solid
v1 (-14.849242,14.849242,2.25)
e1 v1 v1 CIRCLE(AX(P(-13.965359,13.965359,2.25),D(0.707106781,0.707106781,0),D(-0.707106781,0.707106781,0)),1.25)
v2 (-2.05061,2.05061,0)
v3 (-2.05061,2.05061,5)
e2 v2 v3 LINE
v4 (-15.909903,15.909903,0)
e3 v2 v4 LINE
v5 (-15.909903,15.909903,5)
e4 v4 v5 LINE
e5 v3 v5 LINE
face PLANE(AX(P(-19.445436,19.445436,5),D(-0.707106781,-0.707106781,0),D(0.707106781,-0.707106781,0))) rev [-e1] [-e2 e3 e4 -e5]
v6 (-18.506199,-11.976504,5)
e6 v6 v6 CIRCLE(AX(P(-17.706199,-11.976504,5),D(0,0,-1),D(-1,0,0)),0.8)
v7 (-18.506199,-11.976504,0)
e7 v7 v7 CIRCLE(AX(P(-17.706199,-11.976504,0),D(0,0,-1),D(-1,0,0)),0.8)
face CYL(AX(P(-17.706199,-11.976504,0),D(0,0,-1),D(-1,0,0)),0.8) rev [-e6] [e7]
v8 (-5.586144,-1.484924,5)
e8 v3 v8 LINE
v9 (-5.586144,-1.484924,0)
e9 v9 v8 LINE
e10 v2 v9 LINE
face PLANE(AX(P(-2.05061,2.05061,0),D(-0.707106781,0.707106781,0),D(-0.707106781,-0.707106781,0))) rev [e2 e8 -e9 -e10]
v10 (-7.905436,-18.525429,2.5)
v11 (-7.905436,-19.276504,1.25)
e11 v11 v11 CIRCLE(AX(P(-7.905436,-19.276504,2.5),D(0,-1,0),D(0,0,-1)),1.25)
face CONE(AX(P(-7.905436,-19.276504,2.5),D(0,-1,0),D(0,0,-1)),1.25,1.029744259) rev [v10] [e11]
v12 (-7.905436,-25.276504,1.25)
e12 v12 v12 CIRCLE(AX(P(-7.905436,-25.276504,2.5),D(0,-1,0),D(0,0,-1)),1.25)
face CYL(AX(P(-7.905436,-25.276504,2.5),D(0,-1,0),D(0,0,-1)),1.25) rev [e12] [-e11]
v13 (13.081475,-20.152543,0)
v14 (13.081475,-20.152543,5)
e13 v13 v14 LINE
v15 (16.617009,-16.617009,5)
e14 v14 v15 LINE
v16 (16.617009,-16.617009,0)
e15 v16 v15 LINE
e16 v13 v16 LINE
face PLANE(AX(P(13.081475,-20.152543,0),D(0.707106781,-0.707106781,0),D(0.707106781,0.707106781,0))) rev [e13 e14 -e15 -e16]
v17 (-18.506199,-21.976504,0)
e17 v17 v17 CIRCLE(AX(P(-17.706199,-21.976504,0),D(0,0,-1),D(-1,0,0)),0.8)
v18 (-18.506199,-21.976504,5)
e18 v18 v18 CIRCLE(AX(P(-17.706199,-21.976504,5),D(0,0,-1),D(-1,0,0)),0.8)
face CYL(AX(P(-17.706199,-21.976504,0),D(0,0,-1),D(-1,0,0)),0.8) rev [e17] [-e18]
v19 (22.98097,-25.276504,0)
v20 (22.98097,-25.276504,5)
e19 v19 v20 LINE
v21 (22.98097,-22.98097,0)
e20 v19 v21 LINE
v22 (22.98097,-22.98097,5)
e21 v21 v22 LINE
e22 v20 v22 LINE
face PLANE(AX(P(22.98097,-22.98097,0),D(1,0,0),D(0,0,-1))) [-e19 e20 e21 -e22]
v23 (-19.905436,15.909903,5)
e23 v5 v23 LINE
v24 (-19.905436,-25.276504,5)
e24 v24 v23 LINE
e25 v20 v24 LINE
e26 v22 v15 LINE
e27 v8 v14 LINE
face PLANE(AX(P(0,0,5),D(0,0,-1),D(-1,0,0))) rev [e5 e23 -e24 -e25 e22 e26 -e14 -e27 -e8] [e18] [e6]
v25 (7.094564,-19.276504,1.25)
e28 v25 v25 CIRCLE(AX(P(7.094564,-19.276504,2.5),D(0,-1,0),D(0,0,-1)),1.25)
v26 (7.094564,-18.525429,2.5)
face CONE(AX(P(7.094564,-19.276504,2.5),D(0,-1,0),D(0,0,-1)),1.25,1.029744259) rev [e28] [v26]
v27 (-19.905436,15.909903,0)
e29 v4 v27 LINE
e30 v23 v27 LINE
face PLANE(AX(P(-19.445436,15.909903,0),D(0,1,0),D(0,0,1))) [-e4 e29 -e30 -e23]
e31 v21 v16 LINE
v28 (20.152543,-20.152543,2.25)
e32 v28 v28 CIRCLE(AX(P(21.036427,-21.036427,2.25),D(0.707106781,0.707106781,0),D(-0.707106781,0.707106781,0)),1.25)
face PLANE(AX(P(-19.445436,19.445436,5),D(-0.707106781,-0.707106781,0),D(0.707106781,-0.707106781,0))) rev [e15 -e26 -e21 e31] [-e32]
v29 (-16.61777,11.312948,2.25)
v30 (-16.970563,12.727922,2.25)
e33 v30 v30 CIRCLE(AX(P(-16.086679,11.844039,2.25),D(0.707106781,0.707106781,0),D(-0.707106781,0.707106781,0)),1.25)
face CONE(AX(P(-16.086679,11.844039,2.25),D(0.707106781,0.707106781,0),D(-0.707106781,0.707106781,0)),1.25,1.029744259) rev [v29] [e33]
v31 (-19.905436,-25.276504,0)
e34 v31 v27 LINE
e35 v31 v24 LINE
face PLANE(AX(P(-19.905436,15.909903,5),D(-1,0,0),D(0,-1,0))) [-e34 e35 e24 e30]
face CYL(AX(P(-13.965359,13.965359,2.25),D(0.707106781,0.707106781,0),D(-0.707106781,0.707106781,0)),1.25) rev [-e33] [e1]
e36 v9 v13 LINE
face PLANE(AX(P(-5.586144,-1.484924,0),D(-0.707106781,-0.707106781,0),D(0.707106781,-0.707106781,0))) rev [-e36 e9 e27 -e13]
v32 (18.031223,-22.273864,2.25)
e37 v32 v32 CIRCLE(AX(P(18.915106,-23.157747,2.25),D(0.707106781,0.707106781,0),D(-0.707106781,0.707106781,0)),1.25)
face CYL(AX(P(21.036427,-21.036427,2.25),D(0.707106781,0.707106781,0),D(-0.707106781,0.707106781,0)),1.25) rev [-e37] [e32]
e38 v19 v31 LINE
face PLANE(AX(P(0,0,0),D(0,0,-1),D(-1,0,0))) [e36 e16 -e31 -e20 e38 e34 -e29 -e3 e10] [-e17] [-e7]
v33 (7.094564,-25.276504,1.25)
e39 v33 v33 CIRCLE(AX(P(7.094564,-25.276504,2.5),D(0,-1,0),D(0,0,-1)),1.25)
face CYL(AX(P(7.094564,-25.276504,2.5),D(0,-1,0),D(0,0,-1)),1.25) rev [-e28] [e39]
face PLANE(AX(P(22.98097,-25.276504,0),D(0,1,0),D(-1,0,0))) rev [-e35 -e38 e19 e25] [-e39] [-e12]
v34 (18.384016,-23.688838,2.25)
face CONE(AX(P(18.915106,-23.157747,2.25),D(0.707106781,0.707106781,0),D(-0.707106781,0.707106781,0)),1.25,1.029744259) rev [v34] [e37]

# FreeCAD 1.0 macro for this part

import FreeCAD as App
import Part
import Sketcher
Q = App.Units.Quantity

doc = App.newDocument("Part")
body = doc.addObject("PartDesign::Body", "Body")

# Sketch on XY plane
sketch1 = body.newObject("Sketcher::SketchObject", "Sketch")
sketch1.AttachmentSupport = (doc.getObject("XY_Plane"), [""])
sketch1.MapMode = "FlatFace"
sketch1.addGeometry([
    Part.LineSegment(App.Vector(27, -27, 0), App.Vector(-19, 19, 0)),
    Part.LineSegment(App.Vector(-19, 19, 0), App.Vector(-19, -27, 0)),
    Part.LineSegment(App.Vector(-19, -27, 0), App.Vector(27, -27, 0)),
], False)
sketch1.addConstraint([
    Sketcher.Constraint("Coincident", 0, 2, 1, 1),
    Sketcher.Constraint("Coincident", 1, 2, 2, 1),
    Sketcher.Constraint("Coincident", 2, 2, 0, 1),
    Sketcher.Constraint("Vertical", 1),
    Sketcher.Constraint("Horizontal", 2),
    Sketcher.Constraint("Equal", 2, 1),
    Sketcher.Constraint("Distance", 0, Q("65 mm")),
    Sketcher.Constraint("DistanceX", 0, 2, -1, 1, Q("19.445436 mm")),
    Sketcher.Constraint("DistanceY", -1, 1, 0, 2, Q("19.445436 mm")),
])
pad1 = body.newObject("PartDesign::Pad", "Pad")
pad1.Profile = sketch1
pad1.Length = 5

# Sketch on an angled plane
sketch2 = body.newObject("Sketcher::SketchObject", "Sketch001")
sketch2.Placement = App.Placement(App.Vector(0, 0, 0), App.Rotation(App.Vector(0, 0, -1), App.Vector(-0.707106781, 0.707106781, 0), App.Vector(0.707106781, 0.707106781, 0), "ZXY"))
sketch2.addGeometry([
    Part.Circle(App.Vector(-2.2, 19.7, 0), App.Vector(0, 0, 1), 1.2),
    Part.Circle(App.Vector(-2.2, -29.7, 0), App.Vector(0, 0, 1), 1.2),
], False)
sketch2.addConstraint([
    Sketcher.Constraint("Equal", 0, 1),
    Sketcher.Constraint("Vertical", 0, 3, 1, 3),
    Sketcher.Constraint("Diameter", 0, Q("2.5 mm")),
    Sketcher.Constraint("DistanceY", 1, 3, 0, 3, Q("49.5 mm")),
    Sketcher.Constraint("DistanceX", 0, 3, -1, 1, Q("2.25 mm")),
    Sketcher.Constraint("DistanceY", -1, 1, 0, 3, Q("19.75 mm")),
])
doc.recompute()
hole = body.newObject("PartDesign::Hole", "Hole")
hole.Profile = sketch2
hole.ThreadType = "None"
hole.Diameter = 2.5
hole.DepthType = "Dimension"
hole.Depth = 3
hole.DrillPoint = "Angled"
hole.DrillPointAngle = 118

# Sketch on XY plane
sketch3 = body.newObject("Sketcher::SketchObject", "Sketch002")
sketch3.AttachmentSupport = (doc.getObject("XY_Plane"), [""])
sketch3.MapMode = "FlatFace"
sketch3.AttachmentOffset = App.Placement(App.Vector(0, 0, 5), App.Rotation())
sketch3.addGeometry([
    Part.LineSegment(App.Vector(-19.4, 19.4, 0), App.Vector(-15.9, 15.9, 0)),  # 0
    Part.LineSegment(App.Vector(-15.9, 15.9, 0), App.Vector(-14.5, 17.3, 0)),  # 1
    Part.LineSegment(App.Vector(-14.5, 17.3, 0), App.Vector(-18, 20.9, 0)),  # 2
    Part.LineSegment(App.Vector(-18, 20.9, 0), App.Vector(-19.4, 19.4, 0)),  # 3
    Part.LineSegment(App.Vector(23, -23, 0), App.Vector(26.5, -26.5, 0)),  # 4
    Part.LineSegment(App.Vector(26.5, -26.5, 0), App.Vector(27.9, -25.1, 0)),  # 5
    Part.LineSegment(App.Vector(27.9, -25.1, 0), App.Vector(24.4, -21.6, 0)),  # 6
    Part.LineSegment(App.Vector(24.4, -21.6, 0), App.Vector(23, -23, 0)),  # 7
], False)
sketch3.addConstraint([
    Sketcher.Constraint("Coincident", 0, 2, 1, 1),
    Sketcher.Constraint("Coincident", 1, 2, 2, 1),
    Sketcher.Constraint("Coincident", 2, 2, 3, 1),
    Sketcher.Constraint("Coincident", 3, 2, 0, 1),
    Sketcher.Constraint("Coincident", 4, 2, 5, 1),
    Sketcher.Constraint("Coincident", 5, 2, 6, 1),
    Sketcher.Constraint("Coincident", 6, 2, 7, 1),
    Sketcher.Constraint("Coincident", 7, 2, 4, 1),
    Sketcher.Constraint("Perpendicular", 0, 1),
    Sketcher.Constraint("Perpendicular", 1, 2),
    Sketcher.Constraint("Perpendicular", 2, 3),
    Sketcher.Constraint("Perpendicular", 3, 4),
    Sketcher.Constraint("Perpendicular", 4, 5),
    Sketcher.Constraint("Perpendicular", 5, 6),
    Sketcher.Constraint("Perpendicular", 6, 7),
    Sketcher.Constraint("Equal", 2, 4),
    Sketcher.Constraint("Equal", 3, 5),
    Sketcher.Constraint("Angle", 0, Q("-45 deg")),
    Sketcher.Constraint("Distance", 0, Q("5 mm")),
    Sketcher.Constraint("Distance", 1, Q("2 mm")),
    Sketcher.Constraint("DistanceX", 1, 2, -1, 1, Q("14.495689 mm")),
    Sketcher.Constraint("DistanceY", -1, 1, 2, 2, Q("20.85965 mm")),
    Sketcher.Constraint("DistanceY", 5, 2, -1, 1, Q("25.102291 mm")),
    Sketcher.Constraint("DistanceX", -1, 1, 7, 2, Q("22.98097 mm")),
])
pad2 = body.newObject("PartDesign::Pad", "Pad001")
pad2.Profile = sketch3
pad2.Length = 5
pad2.Reversed = True

# Sketch on XY plane
sketch4 = body.newObject("Sketcher::SketchObject", "Sketch003")
sketch4.AttachmentSupport = (doc.getObject("XY_Plane"), [""])
sketch4.MapMode = "FlatFace"
sketch4.AttachmentOffset = App.Placement(App.Vector(0, 0, 5), App.Rotation())
sketch4.addGeometry([
    Part.LineSegment(App.Vector(-2.1, 2.1, 0), App.Vector(-5.6, -1.5, 0)),
    Part.LineSegment(App.Vector(-5.6, -1.5, 0), App.Vector(13.1, -20.2, 0)),
    Part.LineSegment(App.Vector(13.1, -20.2, 0), App.Vector(16.6, -16.6, 0)),
    Part.LineSegment(App.Vector(16.6, -16.6, 0), App.Vector(-2.1, 2.1, 0)),
], False)
sketch4.addConstraint([
    Sketcher.Constraint("Coincident", 0, 2, 1, 1),
    Sketcher.Constraint("Coincident", 1, 2, 2, 1),
    Sketcher.Constraint("Coincident", 2, 2, 3, 1),
    Sketcher.Constraint("Coincident", 3, 2, 0, 1),
    Sketcher.Constraint("Perpendicular", 0, 1),
    Sketcher.Constraint("Perpendicular", 1, 2),
    Sketcher.Constraint("Perpendicular", 2, 3),
    Sketcher.Constraint("Angle", 0, Q("-135 deg")),
    Sketcher.Constraint("Distance", 0, Q("5 mm")),
    Sketcher.Constraint("Distance", 1, Q("26.4 mm")),
    Sketcher.Constraint("DistanceX", -1, 1, 2, 2, Q("16.617009 mm")),
    Sketcher.Constraint("DistanceY", 2, 2, -1, 1, Q("16.617009 mm")),
])
pocket1 = body.newObject("PartDesign::Pocket", "Pocket")
pocket1.Profile = sketch4
pocket1.Type = "ThroughAll"

# Sketch on XY plane
sketch5 = body.newObject("Sketcher::SketchObject", "Sketch004")
sketch5.AttachmentSupport = (doc.getObject("XY_Plane"), [""])
sketch5.MapMode = "FlatFace"
sketch5.AttachmentOffset = App.Placement(App.Vector(0, 0, 5), App.Rotation())
sketch5.addGeometry([
    Part.LineSegment(App.Vector(-19.4, 12.4, 0), App.Vector(-15.9, 15.9, 0)),  # 0
    Part.LineSegment(App.Vector(-15.9, 15.9, 0), App.Vector(-14.5, 17.3, 0)),  # 1
    Part.LineSegment(App.Vector(-14.5, 17.3, 0), App.Vector(-18, 20.9, 0)),  # 2
    Part.LineSegment(App.Vector(-18, 20.9, 0), App.Vector(-19.4, 19.4, 0)),  # 3
    Part.LineSegment(App.Vector(-19.4, 19.4, 0), App.Vector(-19.4, 12.4, 0)),  # 4
    Part.LineSegment(App.Vector(27.9, -25.1, 0), App.Vector(24.4, -21.6, 0)),  # 5
    Part.LineSegment(App.Vector(24.4, -21.6, 0), App.Vector(19.4, -26.5, 0)),  # 6
    Part.LineSegment(App.Vector(19.4, -26.5, 0), App.Vector(26.5, -26.5, 0)),  # 7
    Part.LineSegment(App.Vector(26.5, -26.5, 0), App.Vector(27.9, -25.1, 0)),  # 8
], False)
sketch5.addConstraint([
    Sketcher.Constraint("Coincident", 0, 2, 1, 1),
    Sketcher.Constraint("Coincident", 1, 2, 2, 1),
    Sketcher.Constraint("Coincident", 2, 2, 3, 1),
    Sketcher.Constraint("Coincident", 3, 2, 4, 1),
    Sketcher.Constraint("Coincident", 4, 2, 0, 1),
    Sketcher.Constraint("Coincident", 5, 2, 6, 1),
    Sketcher.Constraint("Coincident", 6, 2, 7, 1),
    Sketcher.Constraint("Coincident", 7, 2, 8, 1),
    Sketcher.Constraint("Coincident", 8, 2, 5, 1),
    Sketcher.Constraint("Vertical", 4),
    Sketcher.Constraint("Horizontal", 7),
    Sketcher.Constraint("Parallel", 0, 1),
    Sketcher.Constraint("Perpendicular", 1, 2),
    Sketcher.Constraint("Perpendicular", 2, 3),
    Sketcher.Constraint("Perpendicular", 3, 5),
    Sketcher.Constraint("Perpendicular", 5, 6),
    Sketcher.Constraint("Parallel", 6, 8),
    Sketcher.Constraint("Equal", 7, 4),
    Sketcher.Constraint("Equal", 0, 2),
    Sketcher.Constraint("Equal", 1, 3),
    Sketcher.Constraint("Equal", 3, 8),
    Sketcher.Constraint("Distance", 0, Q("5 mm")),
    Sketcher.Constraint("Distance", 1, Q("2 mm")),
    Sketcher.Constraint("DistanceX", 1, 2, -1, 1, Q("14.495689 mm")),
    Sketcher.Constraint("DistanceY", -1, 1, 2, 2, Q("20.85965 mm")),
    Sketcher.Constraint("DistanceY", 8, 2, -1, 1, Q("25.102291 mm")),
    Sketcher.Constraint("DistanceX", 4, 2, 5, 2, Q("43.84062 mm")),
])
pocket2 = body.newObject("PartDesign::Pocket", "Pocket001")
pocket2.Profile = sketch5
pocket2.Type = "ThroughAll"

# Sketch on XY plane
sketch6 = body.newObject("Sketcher::SketchObject", "Sketch005")
sketch6.AttachmentSupport = (doc.getObject("XY_Plane"), [""])
sketch6.MapMode = "FlatFace"
sketch6.AttachmentOffset = App.Placement(App.Vector(0, 0, 5), App.Rotation())
sketch6.addGeometry([
    Part.LineSegment(App.Vector(23, -23, 0), App.Vector(19.4, -26.5, 0)),
    Part.LineSegment(App.Vector(19.4, -26.5, 0), App.Vector(23, -26.5, 0)),
    Part.LineSegment(App.Vector(23, -26.5, 0), App.Vector(23, -23, 0)),
], False)
sketch6.addConstraint([
    Sketcher.Constraint("Coincident", 0, 2, 1, 1),
    Sketcher.Constraint("Coincident", 1, 2, 2, 1),
    Sketcher.Constraint("Coincident", 2, 2, 0, 1),
    Sketcher.Constraint("Horizontal", 1),
    Sketcher.Constraint("Vertical", 2),
    Sketcher.Constraint("Equal", 1, 2),
    Sketcher.Constraint("Distance", 0, Q("5 mm")),
    Sketcher.Constraint("DistanceX", -1, 1, 1, 2, Q("22.98097 mm")),
    Sketcher.Constraint("DistanceY", 2, 2, -1, 1, Q("22.98097 mm")),
])
pad3 = body.newObject("PartDesign::Pad", "Pad002")
pad3.Profile = sketch6
pad3.Length = 5
pad3.Reversed = True

# Sketch on XY plane
sketch7 = body.newObject("Sketcher::SketchObject", "Sketch006")
sketch7.AttachmentSupport = (doc.getObject("XY_Plane"), [""])
sketch7.MapMode = "FlatFace"
sketch7.AttachmentOffset = App.Placement(App.Vector(0, 0, 5), App.Rotation())
sketch7.addGeometry([
    Part.LineSegment(App.Vector(-19.4, 15.9, 0), App.Vector(-19.4, 12.4, 0)),
    Part.LineSegment(App.Vector(-19.4, 12.4, 0), App.Vector(-15.9, 15.9, 0)),
    Part.LineSegment(App.Vector(-15.9, 15.9, 0), App.Vector(-19.4, 15.9, 0)),
], False)
sketch7.addConstraint([
    Sketcher.Constraint("Coincident", 0, 2, 1, 1),
    Sketcher.Constraint("Coincident", 1, 2, 2, 1),
    Sketcher.Constraint("Coincident", 2, 2, 0, 1),
    Sketcher.Constraint("Vertical", 0),
    Sketcher.Constraint("Horizontal", 2),
    Sketcher.Constraint("Equal", 2, 0),
    Sketcher.Constraint("Distance", 1, Q("5 mm")),
    Sketcher.Constraint("DistanceY", -1, 1, 0, 2, Q("12.374369 mm")),
    Sketcher.Constraint("DistanceX", 0, 2, -1, 1, Q("19.445436 mm")),
])
pad4 = body.newObject("PartDesign::Pad", "Pad003")
pad4.Profile = sketch7
pad4.Length = 5
pad4.Reversed = True

# Sketch on XY plane
sketch8 = body.newObject("Sketcher::SketchObject", "Sketch007")
sketch8.AttachmentSupport = (doc.getObject("XY_Plane"), [""])
sketch8.MapMode = "FlatFace"
sketch8.addGeometry([
    Part.LineSegment(App.Vector(22.98, -26.52, 0), App.Vector(22.98, -26.98, 0)),
    Part.LineSegment(App.Vector(22.98, -26.98, 0), App.Vector(-19.45, -26.98, 0)),
    Part.LineSegment(App.Vector(-19.45, -26.98, 0), App.Vector(-19.45, -26.52, 0)),
    Part.LineSegment(App.Vector(-19.45, -26.52, 0), App.Vector(22.98, -26.52, 0)),
], False)
sketch8.addConstraint([
    Sketcher.Constraint("Coincident", 0, 2, 1, 1),
    Sketcher.Constraint("Coincident", 1, 2, 2, 1),
    Sketcher.Constraint("Coincident", 2, 2, 3, 1),
    Sketcher.Constraint("Coincident", 3, 2, 0, 1),
    Sketcher.Constraint("Vertical", 0),
    Sketcher.Constraint("Horizontal", 1),
    Sketcher.Constraint("Vertical", 2),
    Sketcher.Constraint("Horizontal", 3),
    Sketcher.Constraint("DistanceY", 0, 2, 0, 1, Q("0.46 mm")),
    Sketcher.Constraint("DistanceX", 1, 2, 1, 1, Q("42.426407 mm")),
    Sketcher.Constraint("DistanceX", -1, 1, 0, 2, Q("22.98097 mm")),
    Sketcher.Constraint("DistanceY", 0, 2, -1, 1, Q("26.976504 mm")),
])
pad5 = body.newObject("PartDesign::Pad", "Pad004")
pad5.Profile = sketch8
pad5.Length = 5

# Sketch on XY plane
sketch9 = body.newObject("Sketcher::SketchObject", "Sketch008")
sketch9.AttachmentSupport = (doc.getObject("XY_Plane"), [""])
sketch9.MapMode = "FlatFace"
sketch9.addGeometry([
    Part.LineSegment(App.Vector(-19.45, 15.91, 0), App.Vector(-19.45, -26.98, 0)),
    Part.LineSegment(App.Vector(-19.45, -26.98, 0), App.Vector(-19.91, -26.98, 0)),
    Part.LineSegment(App.Vector(-19.91, -26.98, 0), App.Vector(-19.91, 15.91, 0)),
    Part.LineSegment(App.Vector(-19.91, 15.91, 0), App.Vector(-19.45, 15.91, 0)),
], False)
sketch9.addConstraint([
    Sketcher.Constraint("Coincident", 0, 2, 1, 1),
    Sketcher.Constraint("Coincident", 1, 2, 2, 1),
    Sketcher.Constraint("Coincident", 2, 2, 3, 1),
    Sketcher.Constraint("Coincident", 3, 2, 0, 1),
    Sketcher.Constraint("Vertical", 0),
    Sketcher.Constraint("Horizontal", 1),
    Sketcher.Constraint("Vertical", 2),
    Sketcher.Constraint("Horizontal", 3),
    Sketcher.Constraint("DistanceX", 1, 2, 1, 1, Q("0.46 mm")),
    Sketcher.Constraint("DistanceY", 0, 2, 0, 1, Q("42.886407 mm")),
    Sketcher.Constraint("DistanceX", 0, 2, -1, 1, Q("19.445436 mm")),
    Sketcher.Constraint("DistanceY", 0, 2, -1, 1, Q("26.976504 mm")),
])
pad6 = body.newObject("PartDesign::Pad", "Pad005")
pad6.Profile = sketch9
pad6.Length = 5

# Sketch on XY plane
sketch10 = body.newObject("Sketcher::SketchObject", "Sketch009")
sketch10.AttachmentSupport = (doc.getObject("XY_Plane"), [""])
sketch10.MapMode = "FlatFace"
sketch10.addGeometry([
    Part.Circle(App.Vector(-17.7, -12, 0), App.Vector(0, 0, 1), 0.8),
    Part.Circle(App.Vector(-17.7, -22, 0), App.Vector(0, 0, 1), 0.8),
], False)
sketch10.addConstraint([
    Sketcher.Constraint("Equal", 0, 1),
    Sketcher.Constraint("Vertical", 0, 3, 1, 3),
    Sketcher.Constraint("Diameter", 0, Q("1.6 mm")),
    Sketcher.Constraint("DistanceY", 1, 3, 0, 3, Q("10 mm")),
    Sketcher.Constraint("DistanceX", 0, 3, -1, 1, Q("17.706199 mm")),
    Sketcher.Constraint("DistanceY", 0, 3, -1, 1, Q("11.976504 mm")),
])
doc.recompute()
hole2 = body.newObject("PartDesign::Hole", "Hole001")
hole2.Profile = sketch10
hole2.ThreadType = "None"
hole2.Diameter = 1.6
hole2.DepthType = "Dimension"
hole2.Depth = 6
hole2.DrillPoint = "Angled"
hole2.DrillPointAngle = 118
hole2.Reversed = True

# Sketch on XY plane
sketch11 = body.newObject("Sketcher::SketchObject", "Sketch010")
sketch11.AttachmentSupport = (doc.getObject("XY_Plane"), [""])
sketch11.MapMode = "FlatFace"
sketch11.AttachmentOffset = App.Placement(App.Vector(0, 0, 5), App.Rotation())
sketch11.addGeometry([
    Part.LineSegment(App.Vector(-19.9, -25.3, 0), App.Vector(-19.9, -27, 0)),
    Part.LineSegment(App.Vector(-19.9, -27, 0), App.Vector(23, -27, 0)),
    Part.LineSegment(App.Vector(23, -27, 0), App.Vector(23, -25.3, 0)),
    Part.LineSegment(App.Vector(23, -25.3, 0), App.Vector(-19.9, -25.3, 0)),
], False)
sketch11.addConstraint([
    Sketcher.Constraint("Coincident", 0, 2, 1, 1),
    Sketcher.Constraint("Coincident", 1, 2, 2, 1),
    Sketcher.Constraint("Coincident", 2, 2, 3, 1),
    Sketcher.Constraint("Coincident", 3, 2, 0, 1),
    Sketcher.Constraint("Vertical", 0),
    Sketcher.Constraint("Horizontal", 1),
    Sketcher.Constraint("Vertical", 2),
    Sketcher.Constraint("Horizontal", 3),
    Sketcher.Constraint("DistanceY", 0, 2, 0, 1, Q("1.7 mm")),
    Sketcher.Constraint("DistanceX", 1, 1, 1, 2, Q("42.886407 mm")),
    Sketcher.Constraint("DistanceX", -1, 1, 1, 2, Q("22.98097 mm")),
    Sketcher.Constraint("DistanceY", 0, 2, -1, 1, Q("26.976504 mm")),
])
pocket3 = body.newObject("PartDesign::Pocket", "Pocket002")
pocket3.Profile = sketch11
pocket3.Type = "ThroughAll"

# Sketch on XZ plane
sketch12 = body.newObject("Sketcher::SketchObject", "Sketch011")
sketch12.AttachmentSupport = (doc.getObject("XZ_Plane"), [""])
sketch12.MapMode = "FlatFace"
sketch12.AttachmentOffset = App.Placement(App.Vector(0, 0, 25.276504), App.Rotation())
sketch12.addGeometry([
    Part.Circle(App.Vector(-7.9, 2.5, 0), App.Vector(0, 0, 1), 1.2),
    Part.Circle(App.Vector(7.1, 2.5, 0), App.Vector(0, 0, 1), 1.2),
], False)
sketch12.addConstraint([
    Sketcher.Constraint("Equal", 0, 1),
    Sketcher.Constraint("Horizontal", 0, 3, 1, 3),
    Sketcher.Constraint("Diameter", 0, Q("2.5 mm")),
    Sketcher.Constraint("DistanceX", 0, 3, 1, 3, Q("15 mm")),
    Sketcher.Constraint("DistanceY", -1, 1, 0, 3, Q("2.5 mm")),
    Sketcher.Constraint("DistanceX", 0, 3, -1, 1, Q("7.905436 mm")),
])
doc.recompute()
hole3 = body.newObject("PartDesign::Hole", "Hole002")
hole3.Profile = sketch12
hole3.ThreadType = "None"
hole3.Diameter = 2.5
hole3.DepthType = "Dimension"
hole3.Depth = 6
hole3.DrillPoint = "Angled"
hole3.DrillPointAngle = 118

doc.recompute()
